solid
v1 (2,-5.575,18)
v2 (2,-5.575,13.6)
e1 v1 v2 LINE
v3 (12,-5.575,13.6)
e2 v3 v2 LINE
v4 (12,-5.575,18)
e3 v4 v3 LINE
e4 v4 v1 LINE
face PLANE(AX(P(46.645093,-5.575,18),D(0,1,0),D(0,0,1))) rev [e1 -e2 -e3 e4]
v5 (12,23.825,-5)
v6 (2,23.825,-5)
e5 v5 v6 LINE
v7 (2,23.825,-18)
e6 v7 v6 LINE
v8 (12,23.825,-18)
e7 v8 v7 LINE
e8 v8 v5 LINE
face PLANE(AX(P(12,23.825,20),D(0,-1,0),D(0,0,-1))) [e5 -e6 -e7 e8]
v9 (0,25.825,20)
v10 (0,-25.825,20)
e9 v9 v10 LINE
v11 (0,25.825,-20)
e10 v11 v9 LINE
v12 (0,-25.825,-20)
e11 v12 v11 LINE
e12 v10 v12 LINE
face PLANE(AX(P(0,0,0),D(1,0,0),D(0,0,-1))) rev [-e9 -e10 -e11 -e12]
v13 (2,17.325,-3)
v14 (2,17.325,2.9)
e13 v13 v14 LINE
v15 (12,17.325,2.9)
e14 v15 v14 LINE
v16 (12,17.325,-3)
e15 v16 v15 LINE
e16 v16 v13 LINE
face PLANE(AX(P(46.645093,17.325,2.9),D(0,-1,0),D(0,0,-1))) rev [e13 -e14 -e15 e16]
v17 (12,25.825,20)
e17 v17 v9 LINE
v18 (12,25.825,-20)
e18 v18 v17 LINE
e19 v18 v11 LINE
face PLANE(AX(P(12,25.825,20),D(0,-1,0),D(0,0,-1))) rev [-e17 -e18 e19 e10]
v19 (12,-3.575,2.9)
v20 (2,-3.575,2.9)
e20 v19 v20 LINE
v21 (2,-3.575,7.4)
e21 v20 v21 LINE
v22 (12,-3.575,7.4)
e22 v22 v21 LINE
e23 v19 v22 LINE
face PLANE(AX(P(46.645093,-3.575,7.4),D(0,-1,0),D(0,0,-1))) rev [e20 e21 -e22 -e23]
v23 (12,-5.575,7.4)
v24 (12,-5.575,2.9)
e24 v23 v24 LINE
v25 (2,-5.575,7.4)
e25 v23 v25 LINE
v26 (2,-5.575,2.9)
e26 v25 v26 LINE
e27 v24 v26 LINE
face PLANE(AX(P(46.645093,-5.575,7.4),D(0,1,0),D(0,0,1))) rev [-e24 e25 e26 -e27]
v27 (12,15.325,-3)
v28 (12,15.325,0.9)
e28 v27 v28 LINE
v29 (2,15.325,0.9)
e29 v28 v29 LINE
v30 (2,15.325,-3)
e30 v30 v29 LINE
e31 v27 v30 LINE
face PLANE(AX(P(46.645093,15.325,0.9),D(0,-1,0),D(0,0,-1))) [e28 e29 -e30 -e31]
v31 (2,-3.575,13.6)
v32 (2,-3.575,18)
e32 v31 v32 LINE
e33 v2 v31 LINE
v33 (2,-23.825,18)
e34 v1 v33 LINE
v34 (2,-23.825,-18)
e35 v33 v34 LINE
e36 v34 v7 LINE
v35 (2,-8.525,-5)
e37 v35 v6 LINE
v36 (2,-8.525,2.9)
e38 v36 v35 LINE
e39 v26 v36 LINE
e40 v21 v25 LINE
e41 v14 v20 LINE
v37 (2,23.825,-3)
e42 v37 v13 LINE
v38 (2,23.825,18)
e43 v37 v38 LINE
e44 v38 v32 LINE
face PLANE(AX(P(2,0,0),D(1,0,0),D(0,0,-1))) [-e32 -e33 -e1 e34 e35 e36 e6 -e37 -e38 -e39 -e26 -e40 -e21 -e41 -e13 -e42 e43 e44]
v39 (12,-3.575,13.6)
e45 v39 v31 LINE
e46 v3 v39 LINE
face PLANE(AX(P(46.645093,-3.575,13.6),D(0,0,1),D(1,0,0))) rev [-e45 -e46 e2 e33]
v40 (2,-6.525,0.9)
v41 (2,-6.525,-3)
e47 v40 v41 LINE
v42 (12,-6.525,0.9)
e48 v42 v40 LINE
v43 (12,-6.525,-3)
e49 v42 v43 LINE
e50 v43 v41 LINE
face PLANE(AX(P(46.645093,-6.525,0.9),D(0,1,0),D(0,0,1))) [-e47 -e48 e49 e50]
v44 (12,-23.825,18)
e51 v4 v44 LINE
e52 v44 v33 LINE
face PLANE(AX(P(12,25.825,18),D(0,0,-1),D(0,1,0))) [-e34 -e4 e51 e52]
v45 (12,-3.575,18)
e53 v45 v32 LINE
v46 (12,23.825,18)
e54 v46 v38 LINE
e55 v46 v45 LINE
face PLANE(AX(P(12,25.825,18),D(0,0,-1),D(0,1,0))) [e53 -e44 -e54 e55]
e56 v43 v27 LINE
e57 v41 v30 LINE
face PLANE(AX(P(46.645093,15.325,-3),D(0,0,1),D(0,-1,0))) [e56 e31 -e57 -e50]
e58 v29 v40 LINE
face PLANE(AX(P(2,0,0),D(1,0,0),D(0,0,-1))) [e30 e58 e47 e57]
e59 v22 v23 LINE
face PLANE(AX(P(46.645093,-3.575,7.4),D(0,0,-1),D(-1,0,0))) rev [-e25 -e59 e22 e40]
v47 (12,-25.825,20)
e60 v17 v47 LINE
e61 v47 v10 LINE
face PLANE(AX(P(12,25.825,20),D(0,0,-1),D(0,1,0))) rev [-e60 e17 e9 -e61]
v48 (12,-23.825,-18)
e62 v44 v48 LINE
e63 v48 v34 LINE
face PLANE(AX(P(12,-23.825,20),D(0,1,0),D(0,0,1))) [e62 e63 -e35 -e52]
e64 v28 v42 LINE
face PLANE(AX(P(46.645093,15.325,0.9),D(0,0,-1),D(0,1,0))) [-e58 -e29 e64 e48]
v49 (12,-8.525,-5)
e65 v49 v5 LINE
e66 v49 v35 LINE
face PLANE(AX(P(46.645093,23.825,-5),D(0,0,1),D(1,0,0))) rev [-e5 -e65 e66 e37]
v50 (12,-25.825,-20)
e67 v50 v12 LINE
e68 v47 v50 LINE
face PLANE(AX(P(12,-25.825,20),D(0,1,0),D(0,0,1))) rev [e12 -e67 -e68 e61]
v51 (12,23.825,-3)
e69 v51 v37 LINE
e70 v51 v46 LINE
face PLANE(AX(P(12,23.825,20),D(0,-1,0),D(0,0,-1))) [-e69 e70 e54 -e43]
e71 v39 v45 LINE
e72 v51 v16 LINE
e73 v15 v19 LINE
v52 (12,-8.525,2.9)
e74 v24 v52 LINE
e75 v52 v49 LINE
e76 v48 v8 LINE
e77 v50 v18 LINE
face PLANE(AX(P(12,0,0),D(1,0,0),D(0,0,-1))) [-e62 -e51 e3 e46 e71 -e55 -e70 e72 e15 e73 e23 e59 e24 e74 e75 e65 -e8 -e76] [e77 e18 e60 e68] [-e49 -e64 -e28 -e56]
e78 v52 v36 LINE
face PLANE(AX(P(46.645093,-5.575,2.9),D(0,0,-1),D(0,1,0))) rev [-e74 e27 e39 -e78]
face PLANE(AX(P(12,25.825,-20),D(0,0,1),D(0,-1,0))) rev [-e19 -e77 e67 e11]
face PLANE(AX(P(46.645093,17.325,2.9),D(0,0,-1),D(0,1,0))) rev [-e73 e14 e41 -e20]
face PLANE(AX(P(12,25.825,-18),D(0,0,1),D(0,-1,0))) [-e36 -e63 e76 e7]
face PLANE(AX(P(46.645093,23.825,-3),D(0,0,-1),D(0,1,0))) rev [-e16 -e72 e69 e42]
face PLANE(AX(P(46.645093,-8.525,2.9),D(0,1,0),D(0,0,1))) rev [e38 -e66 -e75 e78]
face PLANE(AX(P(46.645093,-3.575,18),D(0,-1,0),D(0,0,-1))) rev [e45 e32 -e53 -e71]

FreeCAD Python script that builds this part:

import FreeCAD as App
import Part
import Sketcher
from FreeCAD import Vector


def faces_at(feature, points):
    """Names of the faces that lie closest to the given points."""
    faces = feature.Shape.Faces
    near = lambda p: min(range(len(faces)), key=lambda i: faces[i].distToShape(Part.Vertex(*p))[0])
    return sorted({f"Face{near(p) + 1}" for p in points})

doc = App.newDocument("Part")
params = doc.addObject("Spreadsheet::Sheet", "Params")
for row, (alias, value) in enumerate([
    ("sketch1_height", "40 mm"),
    ("sketch1_width", "51.65 mm"),
    ("pad1_length", "12 mm"),
    ("thickness_wall", "2 mm"),
    ("sketch2_width", "2 mm"),
    ("sketch2_width2", "20.9 mm"),
    ("sketch2_width3", "6.5 mm"),
    ("sketch2_height", "5.9 mm"),
    ("sketch2_height2", "4.5 mm"),
    ("pad2_length", "10 mm"),
], start=1):
    params.set(f"A{row}", alias)
    params.set(f"B{row}", "=" + value)
    params.setAlias(f"B{row}", alias)

body = doc.addObject("PartDesign::Body", "Body")

sketch1 = body.newObject("Sketcher::SketchObject", "Sketch")
sketch1.AttachmentSupport = (doc.getObject("YZ_Plane"), [""])
sketch1.MapMode = "FlatFace"
sketch1.addGeometry([
    Part.LineSegment(Vector(26, 20, 0), Vector(-26, 20, 0)),
    Part.LineSegment(Vector(-26, 20, 0), Vector(-26, -20, 0)),
    Part.LineSegment(Vector(-26, -20, 0), Vector(26, -20, 0)),
    Part.LineSegment(Vector(26, -20, 0), Vector(26, 20, 0)),
], False)
sketch1.addConstraint([
    Sketcher.Constraint("Coincident", 0, 2, 1, 1),
    Sketcher.Constraint("Coincident", 1, 2, 2, 1),
    Sketcher.Constraint("Coincident", 2, 2, 3, 1),
    Sketcher.Constraint("Coincident", 3, 2, 0, 1),
    Sketcher.Constraint("Horizontal", 0),
    Sketcher.Constraint("Vertical", 1),
    Sketcher.Constraint("Horizontal", 2),
    Sketcher.Constraint("Vertical", 3),
    Sketcher.Constraint("Symmetric", 0, 2, 2, 2, -1, 1),
    Sketcher.Constraint("DistanceY", 1, 2, 1, 1, 40.0),
    Sketcher.Constraint("DistanceX", 0, 2, 0, 1, 51.65),
])
sketch1.setExpression("Constraints[9]", "Params.sketch1_height")
sketch1.setExpression("Constraints[10]", "Params.sketch1_width")
pad1 = body.newObject("PartDesign::Pad", "Pad")
pad1.Profile = sketch1
pad1.setExpression("Length", "Params.pad1_length")
doc.recompute()

thickness = body.newObject("PartDesign::Thickness", "Thickness")
thickness.Base = (pad1, faces_at(pad1, [(12, 0, 0)]))
thickness.setExpression("Value", "Params.thickness_wall")
thickness.Reversed = True
thickness.Join = "Intersection"

sketch2 = body.newObject("Sketcher::SketchObject", "Sketch001")
sketch2.AttachmentSupport = (doc.getObject("YZ_Plane"), [""])
sketch2.MapMode = "FlatFace"
sketch2.AttachmentOffset = App.Placement(Vector(0, 0, 2), App.Rotation())
sketch2.addGeometry([
    Part.LineSegment(Vector(17.3, -3, 0), Vector(17.3, 2.9, 0)),
    Part.LineSegment(Vector(17.3, 2.9, 0), Vector(-3.6, 2.9, 0)),
    Part.LineSegment(Vector(-3.6, 2.9, 0), Vector(-3.6, 7.4, 0)),
    Part.LineSegment(Vector(-3.6, 7.4, 0), Vector(-5.6, 7.4, 0)),
    Part.LineSegment(Vector(-5.6, 7.4, 0), Vector(-5.6, 2.9, 0)),
    Part.LineSegment(Vector(-5.6, 2.9, 0), Vector(-8.5, 2.9, 0)),
    Part.LineSegment(Vector(-8.5, 2.9, 0), Vector(-8.5, -5, 0)),
    Part.LineSegment(Vector(-8.5, -5, 0), Vector(23.8, -5, 0)),
    Part.LineSegment(Vector(23.8, -5, 0), Vector(23.8, -3, 0)),
    Part.LineSegment(Vector(23.8, -3, 0), Vector(17.3, -3, 0)),
    Part.LineSegment(Vector(-6.5, 0.9, 0), Vector(15.3, 0.9, 0)),
    Part.LineSegment(Vector(15.3, 0.9, 0), Vector(15.3, -3, 0)),
    Part.LineSegment(Vector(15.3, -3, 0), Vector(-6.5, -3, 0)),
    Part.LineSegment(Vector(-6.5, -3, 0), Vector(-6.5, 0.9, 0)),
    Part.LineSegment(Vector(-3.6, 18, 0), Vector(-5.6, 18, 0)),
    Part.LineSegment(Vector(-5.6, 18, 0), Vector(-5.6, 13.6, 0)),
    Part.LineSegment(Vector(-5.6, 13.6, 0), Vector(-3.6, 13.6, 0)),
    Part.LineSegment(Vector(-3.6, 13.6, 0), Vector(-3.6, 18, 0)),
], False)
sketch2.addConstraint([
    Sketcher.Constraint("Coincident", 0, 2, 1, 1),
    Sketcher.Constraint("Coincident", 1, 2, 2, 1),
    Sketcher.Constraint("Coincident", 2, 2, 3, 1),
    Sketcher.Constraint("Coincident", 3, 2, 4, 1),
    Sketcher.Constraint("Coincident", 4, 2, 5, 1),
    Sketcher.Constraint("Coincident", 5, 2, 6, 1),
    Sketcher.Constraint("Coincident", 6, 2, 7, 1),
    Sketcher.Constraint("Coincident", 7, 2, 8, 1),
    Sketcher.Constraint("Coincident", 8, 2, 9, 1),
    Sketcher.Constraint("Coincident", 9, 2, 0, 1),
    Sketcher.Constraint("Coincident", 10, 2, 11, 1),
    Sketcher.Constraint("Coincident", 11, 2, 12, 1),
    Sketcher.Constraint("Coincident", 12, 2, 13, 1),
    Sketcher.Constraint("Coincident", 13, 2, 10, 1),
    Sketcher.Constraint("Coincident", 14, 2, 15, 1),
    Sketcher.Constraint("Coincident", 15, 2, 16, 1),
    Sketcher.Constraint("Coincident", 16, 2, 17, 1),
    Sketcher.Constraint("Coincident", 17, 2, 14, 1),
    Sketcher.Constraint("Vertical", 0),
    Sketcher.Constraint("Horizontal", 1),
    Sketcher.Constraint("Vertical", 2),
    Sketcher.Constraint("Horizontal", 3),
    Sketcher.Constraint("Vertical", 4),
    Sketcher.Constraint("Horizontal", 5),
    Sketcher.Constraint("Vertical", 6),
    Sketcher.Constraint("Horizontal", 7),
    Sketcher.Constraint("Vertical", 8),
    Sketcher.Constraint("Horizontal", 9),
    Sketcher.Constraint("Horizontal", 10),
    Sketcher.Constraint("Vertical", 11),
    Sketcher.Constraint("Horizontal", 12),
    Sketcher.Constraint("Vertical", 13),
    Sketcher.Constraint("Horizontal", 14),
    Sketcher.Constraint("Vertical", 15),
    Sketcher.Constraint("Horizontal", 16),
    Sketcher.Constraint("Vertical", 17),
    Sketcher.Constraint("Horizontal", 1, 2, 4, 2),
    Sketcher.Constraint("Horizontal", 9, 2, 11, 2),
    Sketcher.Constraint("Vertical", 4, 2, 14, 2),
    Sketcher.Constraint("Vertical", 2, 2, 16, 2),
    Sketcher.Constraint("Equal", 16, 8),
    Sketcher.Constraint("DistanceX", 3, 2, 3, 1, 2.0),
    Sketcher.Constraint("DistanceX", 1, 2, 1, 1, 20.9),
    Sketcher.Constraint("DistanceX", 9, 2, 9, 1, 6.5),
    Sketcher.Constraint("DistanceY", 0, 1, 0, 2, 5.9),
    Sketcher.Constraint("DistanceY", 2, 1, 2, 2, 4.5),
    Sketcher.Constraint("DistanceY", 11, 2, 11, 1, 3.9),
    Sketcher.Constraint("DistanceY", 15, 2, 15, 1, 4.4),
    Sketcher.Constraint("DistanceY", 6, 2, -1, 1, 5.0),
    Sketcher.Constraint("DistanceY", -1, 1, 14, 2, 18.0),
    Sketcher.Constraint("DistanceX", 10, 2, 0, 2, 2.0),
    Sketcher.Constraint("DistanceX", 6, 2, 12, 2, 2.0),
    Sketcher.Constraint("DistanceX", 5, 2, 5, 1, 2.95),
    Sketcher.Constraint("DistanceX", -1, 1, 0, 2, 17.325),
])
sketch2.setExpression("Constraints[41]", "Params.sketch2_width")
sketch2.setExpression("Constraints[42]", "Params.sketch2_width2")
sketch2.setExpression("Constraints[43]", "Params.sketch2_width3")
sketch2.setExpression("Constraints[44]", "Params.sketch2_height")
sketch2.setExpression("Constraints[45]", "Params.sketch2_height2")
pad2 = body.newObject("PartDesign::Pad", "Pad001")
pad2.Profile = sketch2
pad2.setExpression("Length", "Params.pad2_length")

doc.recompute()
